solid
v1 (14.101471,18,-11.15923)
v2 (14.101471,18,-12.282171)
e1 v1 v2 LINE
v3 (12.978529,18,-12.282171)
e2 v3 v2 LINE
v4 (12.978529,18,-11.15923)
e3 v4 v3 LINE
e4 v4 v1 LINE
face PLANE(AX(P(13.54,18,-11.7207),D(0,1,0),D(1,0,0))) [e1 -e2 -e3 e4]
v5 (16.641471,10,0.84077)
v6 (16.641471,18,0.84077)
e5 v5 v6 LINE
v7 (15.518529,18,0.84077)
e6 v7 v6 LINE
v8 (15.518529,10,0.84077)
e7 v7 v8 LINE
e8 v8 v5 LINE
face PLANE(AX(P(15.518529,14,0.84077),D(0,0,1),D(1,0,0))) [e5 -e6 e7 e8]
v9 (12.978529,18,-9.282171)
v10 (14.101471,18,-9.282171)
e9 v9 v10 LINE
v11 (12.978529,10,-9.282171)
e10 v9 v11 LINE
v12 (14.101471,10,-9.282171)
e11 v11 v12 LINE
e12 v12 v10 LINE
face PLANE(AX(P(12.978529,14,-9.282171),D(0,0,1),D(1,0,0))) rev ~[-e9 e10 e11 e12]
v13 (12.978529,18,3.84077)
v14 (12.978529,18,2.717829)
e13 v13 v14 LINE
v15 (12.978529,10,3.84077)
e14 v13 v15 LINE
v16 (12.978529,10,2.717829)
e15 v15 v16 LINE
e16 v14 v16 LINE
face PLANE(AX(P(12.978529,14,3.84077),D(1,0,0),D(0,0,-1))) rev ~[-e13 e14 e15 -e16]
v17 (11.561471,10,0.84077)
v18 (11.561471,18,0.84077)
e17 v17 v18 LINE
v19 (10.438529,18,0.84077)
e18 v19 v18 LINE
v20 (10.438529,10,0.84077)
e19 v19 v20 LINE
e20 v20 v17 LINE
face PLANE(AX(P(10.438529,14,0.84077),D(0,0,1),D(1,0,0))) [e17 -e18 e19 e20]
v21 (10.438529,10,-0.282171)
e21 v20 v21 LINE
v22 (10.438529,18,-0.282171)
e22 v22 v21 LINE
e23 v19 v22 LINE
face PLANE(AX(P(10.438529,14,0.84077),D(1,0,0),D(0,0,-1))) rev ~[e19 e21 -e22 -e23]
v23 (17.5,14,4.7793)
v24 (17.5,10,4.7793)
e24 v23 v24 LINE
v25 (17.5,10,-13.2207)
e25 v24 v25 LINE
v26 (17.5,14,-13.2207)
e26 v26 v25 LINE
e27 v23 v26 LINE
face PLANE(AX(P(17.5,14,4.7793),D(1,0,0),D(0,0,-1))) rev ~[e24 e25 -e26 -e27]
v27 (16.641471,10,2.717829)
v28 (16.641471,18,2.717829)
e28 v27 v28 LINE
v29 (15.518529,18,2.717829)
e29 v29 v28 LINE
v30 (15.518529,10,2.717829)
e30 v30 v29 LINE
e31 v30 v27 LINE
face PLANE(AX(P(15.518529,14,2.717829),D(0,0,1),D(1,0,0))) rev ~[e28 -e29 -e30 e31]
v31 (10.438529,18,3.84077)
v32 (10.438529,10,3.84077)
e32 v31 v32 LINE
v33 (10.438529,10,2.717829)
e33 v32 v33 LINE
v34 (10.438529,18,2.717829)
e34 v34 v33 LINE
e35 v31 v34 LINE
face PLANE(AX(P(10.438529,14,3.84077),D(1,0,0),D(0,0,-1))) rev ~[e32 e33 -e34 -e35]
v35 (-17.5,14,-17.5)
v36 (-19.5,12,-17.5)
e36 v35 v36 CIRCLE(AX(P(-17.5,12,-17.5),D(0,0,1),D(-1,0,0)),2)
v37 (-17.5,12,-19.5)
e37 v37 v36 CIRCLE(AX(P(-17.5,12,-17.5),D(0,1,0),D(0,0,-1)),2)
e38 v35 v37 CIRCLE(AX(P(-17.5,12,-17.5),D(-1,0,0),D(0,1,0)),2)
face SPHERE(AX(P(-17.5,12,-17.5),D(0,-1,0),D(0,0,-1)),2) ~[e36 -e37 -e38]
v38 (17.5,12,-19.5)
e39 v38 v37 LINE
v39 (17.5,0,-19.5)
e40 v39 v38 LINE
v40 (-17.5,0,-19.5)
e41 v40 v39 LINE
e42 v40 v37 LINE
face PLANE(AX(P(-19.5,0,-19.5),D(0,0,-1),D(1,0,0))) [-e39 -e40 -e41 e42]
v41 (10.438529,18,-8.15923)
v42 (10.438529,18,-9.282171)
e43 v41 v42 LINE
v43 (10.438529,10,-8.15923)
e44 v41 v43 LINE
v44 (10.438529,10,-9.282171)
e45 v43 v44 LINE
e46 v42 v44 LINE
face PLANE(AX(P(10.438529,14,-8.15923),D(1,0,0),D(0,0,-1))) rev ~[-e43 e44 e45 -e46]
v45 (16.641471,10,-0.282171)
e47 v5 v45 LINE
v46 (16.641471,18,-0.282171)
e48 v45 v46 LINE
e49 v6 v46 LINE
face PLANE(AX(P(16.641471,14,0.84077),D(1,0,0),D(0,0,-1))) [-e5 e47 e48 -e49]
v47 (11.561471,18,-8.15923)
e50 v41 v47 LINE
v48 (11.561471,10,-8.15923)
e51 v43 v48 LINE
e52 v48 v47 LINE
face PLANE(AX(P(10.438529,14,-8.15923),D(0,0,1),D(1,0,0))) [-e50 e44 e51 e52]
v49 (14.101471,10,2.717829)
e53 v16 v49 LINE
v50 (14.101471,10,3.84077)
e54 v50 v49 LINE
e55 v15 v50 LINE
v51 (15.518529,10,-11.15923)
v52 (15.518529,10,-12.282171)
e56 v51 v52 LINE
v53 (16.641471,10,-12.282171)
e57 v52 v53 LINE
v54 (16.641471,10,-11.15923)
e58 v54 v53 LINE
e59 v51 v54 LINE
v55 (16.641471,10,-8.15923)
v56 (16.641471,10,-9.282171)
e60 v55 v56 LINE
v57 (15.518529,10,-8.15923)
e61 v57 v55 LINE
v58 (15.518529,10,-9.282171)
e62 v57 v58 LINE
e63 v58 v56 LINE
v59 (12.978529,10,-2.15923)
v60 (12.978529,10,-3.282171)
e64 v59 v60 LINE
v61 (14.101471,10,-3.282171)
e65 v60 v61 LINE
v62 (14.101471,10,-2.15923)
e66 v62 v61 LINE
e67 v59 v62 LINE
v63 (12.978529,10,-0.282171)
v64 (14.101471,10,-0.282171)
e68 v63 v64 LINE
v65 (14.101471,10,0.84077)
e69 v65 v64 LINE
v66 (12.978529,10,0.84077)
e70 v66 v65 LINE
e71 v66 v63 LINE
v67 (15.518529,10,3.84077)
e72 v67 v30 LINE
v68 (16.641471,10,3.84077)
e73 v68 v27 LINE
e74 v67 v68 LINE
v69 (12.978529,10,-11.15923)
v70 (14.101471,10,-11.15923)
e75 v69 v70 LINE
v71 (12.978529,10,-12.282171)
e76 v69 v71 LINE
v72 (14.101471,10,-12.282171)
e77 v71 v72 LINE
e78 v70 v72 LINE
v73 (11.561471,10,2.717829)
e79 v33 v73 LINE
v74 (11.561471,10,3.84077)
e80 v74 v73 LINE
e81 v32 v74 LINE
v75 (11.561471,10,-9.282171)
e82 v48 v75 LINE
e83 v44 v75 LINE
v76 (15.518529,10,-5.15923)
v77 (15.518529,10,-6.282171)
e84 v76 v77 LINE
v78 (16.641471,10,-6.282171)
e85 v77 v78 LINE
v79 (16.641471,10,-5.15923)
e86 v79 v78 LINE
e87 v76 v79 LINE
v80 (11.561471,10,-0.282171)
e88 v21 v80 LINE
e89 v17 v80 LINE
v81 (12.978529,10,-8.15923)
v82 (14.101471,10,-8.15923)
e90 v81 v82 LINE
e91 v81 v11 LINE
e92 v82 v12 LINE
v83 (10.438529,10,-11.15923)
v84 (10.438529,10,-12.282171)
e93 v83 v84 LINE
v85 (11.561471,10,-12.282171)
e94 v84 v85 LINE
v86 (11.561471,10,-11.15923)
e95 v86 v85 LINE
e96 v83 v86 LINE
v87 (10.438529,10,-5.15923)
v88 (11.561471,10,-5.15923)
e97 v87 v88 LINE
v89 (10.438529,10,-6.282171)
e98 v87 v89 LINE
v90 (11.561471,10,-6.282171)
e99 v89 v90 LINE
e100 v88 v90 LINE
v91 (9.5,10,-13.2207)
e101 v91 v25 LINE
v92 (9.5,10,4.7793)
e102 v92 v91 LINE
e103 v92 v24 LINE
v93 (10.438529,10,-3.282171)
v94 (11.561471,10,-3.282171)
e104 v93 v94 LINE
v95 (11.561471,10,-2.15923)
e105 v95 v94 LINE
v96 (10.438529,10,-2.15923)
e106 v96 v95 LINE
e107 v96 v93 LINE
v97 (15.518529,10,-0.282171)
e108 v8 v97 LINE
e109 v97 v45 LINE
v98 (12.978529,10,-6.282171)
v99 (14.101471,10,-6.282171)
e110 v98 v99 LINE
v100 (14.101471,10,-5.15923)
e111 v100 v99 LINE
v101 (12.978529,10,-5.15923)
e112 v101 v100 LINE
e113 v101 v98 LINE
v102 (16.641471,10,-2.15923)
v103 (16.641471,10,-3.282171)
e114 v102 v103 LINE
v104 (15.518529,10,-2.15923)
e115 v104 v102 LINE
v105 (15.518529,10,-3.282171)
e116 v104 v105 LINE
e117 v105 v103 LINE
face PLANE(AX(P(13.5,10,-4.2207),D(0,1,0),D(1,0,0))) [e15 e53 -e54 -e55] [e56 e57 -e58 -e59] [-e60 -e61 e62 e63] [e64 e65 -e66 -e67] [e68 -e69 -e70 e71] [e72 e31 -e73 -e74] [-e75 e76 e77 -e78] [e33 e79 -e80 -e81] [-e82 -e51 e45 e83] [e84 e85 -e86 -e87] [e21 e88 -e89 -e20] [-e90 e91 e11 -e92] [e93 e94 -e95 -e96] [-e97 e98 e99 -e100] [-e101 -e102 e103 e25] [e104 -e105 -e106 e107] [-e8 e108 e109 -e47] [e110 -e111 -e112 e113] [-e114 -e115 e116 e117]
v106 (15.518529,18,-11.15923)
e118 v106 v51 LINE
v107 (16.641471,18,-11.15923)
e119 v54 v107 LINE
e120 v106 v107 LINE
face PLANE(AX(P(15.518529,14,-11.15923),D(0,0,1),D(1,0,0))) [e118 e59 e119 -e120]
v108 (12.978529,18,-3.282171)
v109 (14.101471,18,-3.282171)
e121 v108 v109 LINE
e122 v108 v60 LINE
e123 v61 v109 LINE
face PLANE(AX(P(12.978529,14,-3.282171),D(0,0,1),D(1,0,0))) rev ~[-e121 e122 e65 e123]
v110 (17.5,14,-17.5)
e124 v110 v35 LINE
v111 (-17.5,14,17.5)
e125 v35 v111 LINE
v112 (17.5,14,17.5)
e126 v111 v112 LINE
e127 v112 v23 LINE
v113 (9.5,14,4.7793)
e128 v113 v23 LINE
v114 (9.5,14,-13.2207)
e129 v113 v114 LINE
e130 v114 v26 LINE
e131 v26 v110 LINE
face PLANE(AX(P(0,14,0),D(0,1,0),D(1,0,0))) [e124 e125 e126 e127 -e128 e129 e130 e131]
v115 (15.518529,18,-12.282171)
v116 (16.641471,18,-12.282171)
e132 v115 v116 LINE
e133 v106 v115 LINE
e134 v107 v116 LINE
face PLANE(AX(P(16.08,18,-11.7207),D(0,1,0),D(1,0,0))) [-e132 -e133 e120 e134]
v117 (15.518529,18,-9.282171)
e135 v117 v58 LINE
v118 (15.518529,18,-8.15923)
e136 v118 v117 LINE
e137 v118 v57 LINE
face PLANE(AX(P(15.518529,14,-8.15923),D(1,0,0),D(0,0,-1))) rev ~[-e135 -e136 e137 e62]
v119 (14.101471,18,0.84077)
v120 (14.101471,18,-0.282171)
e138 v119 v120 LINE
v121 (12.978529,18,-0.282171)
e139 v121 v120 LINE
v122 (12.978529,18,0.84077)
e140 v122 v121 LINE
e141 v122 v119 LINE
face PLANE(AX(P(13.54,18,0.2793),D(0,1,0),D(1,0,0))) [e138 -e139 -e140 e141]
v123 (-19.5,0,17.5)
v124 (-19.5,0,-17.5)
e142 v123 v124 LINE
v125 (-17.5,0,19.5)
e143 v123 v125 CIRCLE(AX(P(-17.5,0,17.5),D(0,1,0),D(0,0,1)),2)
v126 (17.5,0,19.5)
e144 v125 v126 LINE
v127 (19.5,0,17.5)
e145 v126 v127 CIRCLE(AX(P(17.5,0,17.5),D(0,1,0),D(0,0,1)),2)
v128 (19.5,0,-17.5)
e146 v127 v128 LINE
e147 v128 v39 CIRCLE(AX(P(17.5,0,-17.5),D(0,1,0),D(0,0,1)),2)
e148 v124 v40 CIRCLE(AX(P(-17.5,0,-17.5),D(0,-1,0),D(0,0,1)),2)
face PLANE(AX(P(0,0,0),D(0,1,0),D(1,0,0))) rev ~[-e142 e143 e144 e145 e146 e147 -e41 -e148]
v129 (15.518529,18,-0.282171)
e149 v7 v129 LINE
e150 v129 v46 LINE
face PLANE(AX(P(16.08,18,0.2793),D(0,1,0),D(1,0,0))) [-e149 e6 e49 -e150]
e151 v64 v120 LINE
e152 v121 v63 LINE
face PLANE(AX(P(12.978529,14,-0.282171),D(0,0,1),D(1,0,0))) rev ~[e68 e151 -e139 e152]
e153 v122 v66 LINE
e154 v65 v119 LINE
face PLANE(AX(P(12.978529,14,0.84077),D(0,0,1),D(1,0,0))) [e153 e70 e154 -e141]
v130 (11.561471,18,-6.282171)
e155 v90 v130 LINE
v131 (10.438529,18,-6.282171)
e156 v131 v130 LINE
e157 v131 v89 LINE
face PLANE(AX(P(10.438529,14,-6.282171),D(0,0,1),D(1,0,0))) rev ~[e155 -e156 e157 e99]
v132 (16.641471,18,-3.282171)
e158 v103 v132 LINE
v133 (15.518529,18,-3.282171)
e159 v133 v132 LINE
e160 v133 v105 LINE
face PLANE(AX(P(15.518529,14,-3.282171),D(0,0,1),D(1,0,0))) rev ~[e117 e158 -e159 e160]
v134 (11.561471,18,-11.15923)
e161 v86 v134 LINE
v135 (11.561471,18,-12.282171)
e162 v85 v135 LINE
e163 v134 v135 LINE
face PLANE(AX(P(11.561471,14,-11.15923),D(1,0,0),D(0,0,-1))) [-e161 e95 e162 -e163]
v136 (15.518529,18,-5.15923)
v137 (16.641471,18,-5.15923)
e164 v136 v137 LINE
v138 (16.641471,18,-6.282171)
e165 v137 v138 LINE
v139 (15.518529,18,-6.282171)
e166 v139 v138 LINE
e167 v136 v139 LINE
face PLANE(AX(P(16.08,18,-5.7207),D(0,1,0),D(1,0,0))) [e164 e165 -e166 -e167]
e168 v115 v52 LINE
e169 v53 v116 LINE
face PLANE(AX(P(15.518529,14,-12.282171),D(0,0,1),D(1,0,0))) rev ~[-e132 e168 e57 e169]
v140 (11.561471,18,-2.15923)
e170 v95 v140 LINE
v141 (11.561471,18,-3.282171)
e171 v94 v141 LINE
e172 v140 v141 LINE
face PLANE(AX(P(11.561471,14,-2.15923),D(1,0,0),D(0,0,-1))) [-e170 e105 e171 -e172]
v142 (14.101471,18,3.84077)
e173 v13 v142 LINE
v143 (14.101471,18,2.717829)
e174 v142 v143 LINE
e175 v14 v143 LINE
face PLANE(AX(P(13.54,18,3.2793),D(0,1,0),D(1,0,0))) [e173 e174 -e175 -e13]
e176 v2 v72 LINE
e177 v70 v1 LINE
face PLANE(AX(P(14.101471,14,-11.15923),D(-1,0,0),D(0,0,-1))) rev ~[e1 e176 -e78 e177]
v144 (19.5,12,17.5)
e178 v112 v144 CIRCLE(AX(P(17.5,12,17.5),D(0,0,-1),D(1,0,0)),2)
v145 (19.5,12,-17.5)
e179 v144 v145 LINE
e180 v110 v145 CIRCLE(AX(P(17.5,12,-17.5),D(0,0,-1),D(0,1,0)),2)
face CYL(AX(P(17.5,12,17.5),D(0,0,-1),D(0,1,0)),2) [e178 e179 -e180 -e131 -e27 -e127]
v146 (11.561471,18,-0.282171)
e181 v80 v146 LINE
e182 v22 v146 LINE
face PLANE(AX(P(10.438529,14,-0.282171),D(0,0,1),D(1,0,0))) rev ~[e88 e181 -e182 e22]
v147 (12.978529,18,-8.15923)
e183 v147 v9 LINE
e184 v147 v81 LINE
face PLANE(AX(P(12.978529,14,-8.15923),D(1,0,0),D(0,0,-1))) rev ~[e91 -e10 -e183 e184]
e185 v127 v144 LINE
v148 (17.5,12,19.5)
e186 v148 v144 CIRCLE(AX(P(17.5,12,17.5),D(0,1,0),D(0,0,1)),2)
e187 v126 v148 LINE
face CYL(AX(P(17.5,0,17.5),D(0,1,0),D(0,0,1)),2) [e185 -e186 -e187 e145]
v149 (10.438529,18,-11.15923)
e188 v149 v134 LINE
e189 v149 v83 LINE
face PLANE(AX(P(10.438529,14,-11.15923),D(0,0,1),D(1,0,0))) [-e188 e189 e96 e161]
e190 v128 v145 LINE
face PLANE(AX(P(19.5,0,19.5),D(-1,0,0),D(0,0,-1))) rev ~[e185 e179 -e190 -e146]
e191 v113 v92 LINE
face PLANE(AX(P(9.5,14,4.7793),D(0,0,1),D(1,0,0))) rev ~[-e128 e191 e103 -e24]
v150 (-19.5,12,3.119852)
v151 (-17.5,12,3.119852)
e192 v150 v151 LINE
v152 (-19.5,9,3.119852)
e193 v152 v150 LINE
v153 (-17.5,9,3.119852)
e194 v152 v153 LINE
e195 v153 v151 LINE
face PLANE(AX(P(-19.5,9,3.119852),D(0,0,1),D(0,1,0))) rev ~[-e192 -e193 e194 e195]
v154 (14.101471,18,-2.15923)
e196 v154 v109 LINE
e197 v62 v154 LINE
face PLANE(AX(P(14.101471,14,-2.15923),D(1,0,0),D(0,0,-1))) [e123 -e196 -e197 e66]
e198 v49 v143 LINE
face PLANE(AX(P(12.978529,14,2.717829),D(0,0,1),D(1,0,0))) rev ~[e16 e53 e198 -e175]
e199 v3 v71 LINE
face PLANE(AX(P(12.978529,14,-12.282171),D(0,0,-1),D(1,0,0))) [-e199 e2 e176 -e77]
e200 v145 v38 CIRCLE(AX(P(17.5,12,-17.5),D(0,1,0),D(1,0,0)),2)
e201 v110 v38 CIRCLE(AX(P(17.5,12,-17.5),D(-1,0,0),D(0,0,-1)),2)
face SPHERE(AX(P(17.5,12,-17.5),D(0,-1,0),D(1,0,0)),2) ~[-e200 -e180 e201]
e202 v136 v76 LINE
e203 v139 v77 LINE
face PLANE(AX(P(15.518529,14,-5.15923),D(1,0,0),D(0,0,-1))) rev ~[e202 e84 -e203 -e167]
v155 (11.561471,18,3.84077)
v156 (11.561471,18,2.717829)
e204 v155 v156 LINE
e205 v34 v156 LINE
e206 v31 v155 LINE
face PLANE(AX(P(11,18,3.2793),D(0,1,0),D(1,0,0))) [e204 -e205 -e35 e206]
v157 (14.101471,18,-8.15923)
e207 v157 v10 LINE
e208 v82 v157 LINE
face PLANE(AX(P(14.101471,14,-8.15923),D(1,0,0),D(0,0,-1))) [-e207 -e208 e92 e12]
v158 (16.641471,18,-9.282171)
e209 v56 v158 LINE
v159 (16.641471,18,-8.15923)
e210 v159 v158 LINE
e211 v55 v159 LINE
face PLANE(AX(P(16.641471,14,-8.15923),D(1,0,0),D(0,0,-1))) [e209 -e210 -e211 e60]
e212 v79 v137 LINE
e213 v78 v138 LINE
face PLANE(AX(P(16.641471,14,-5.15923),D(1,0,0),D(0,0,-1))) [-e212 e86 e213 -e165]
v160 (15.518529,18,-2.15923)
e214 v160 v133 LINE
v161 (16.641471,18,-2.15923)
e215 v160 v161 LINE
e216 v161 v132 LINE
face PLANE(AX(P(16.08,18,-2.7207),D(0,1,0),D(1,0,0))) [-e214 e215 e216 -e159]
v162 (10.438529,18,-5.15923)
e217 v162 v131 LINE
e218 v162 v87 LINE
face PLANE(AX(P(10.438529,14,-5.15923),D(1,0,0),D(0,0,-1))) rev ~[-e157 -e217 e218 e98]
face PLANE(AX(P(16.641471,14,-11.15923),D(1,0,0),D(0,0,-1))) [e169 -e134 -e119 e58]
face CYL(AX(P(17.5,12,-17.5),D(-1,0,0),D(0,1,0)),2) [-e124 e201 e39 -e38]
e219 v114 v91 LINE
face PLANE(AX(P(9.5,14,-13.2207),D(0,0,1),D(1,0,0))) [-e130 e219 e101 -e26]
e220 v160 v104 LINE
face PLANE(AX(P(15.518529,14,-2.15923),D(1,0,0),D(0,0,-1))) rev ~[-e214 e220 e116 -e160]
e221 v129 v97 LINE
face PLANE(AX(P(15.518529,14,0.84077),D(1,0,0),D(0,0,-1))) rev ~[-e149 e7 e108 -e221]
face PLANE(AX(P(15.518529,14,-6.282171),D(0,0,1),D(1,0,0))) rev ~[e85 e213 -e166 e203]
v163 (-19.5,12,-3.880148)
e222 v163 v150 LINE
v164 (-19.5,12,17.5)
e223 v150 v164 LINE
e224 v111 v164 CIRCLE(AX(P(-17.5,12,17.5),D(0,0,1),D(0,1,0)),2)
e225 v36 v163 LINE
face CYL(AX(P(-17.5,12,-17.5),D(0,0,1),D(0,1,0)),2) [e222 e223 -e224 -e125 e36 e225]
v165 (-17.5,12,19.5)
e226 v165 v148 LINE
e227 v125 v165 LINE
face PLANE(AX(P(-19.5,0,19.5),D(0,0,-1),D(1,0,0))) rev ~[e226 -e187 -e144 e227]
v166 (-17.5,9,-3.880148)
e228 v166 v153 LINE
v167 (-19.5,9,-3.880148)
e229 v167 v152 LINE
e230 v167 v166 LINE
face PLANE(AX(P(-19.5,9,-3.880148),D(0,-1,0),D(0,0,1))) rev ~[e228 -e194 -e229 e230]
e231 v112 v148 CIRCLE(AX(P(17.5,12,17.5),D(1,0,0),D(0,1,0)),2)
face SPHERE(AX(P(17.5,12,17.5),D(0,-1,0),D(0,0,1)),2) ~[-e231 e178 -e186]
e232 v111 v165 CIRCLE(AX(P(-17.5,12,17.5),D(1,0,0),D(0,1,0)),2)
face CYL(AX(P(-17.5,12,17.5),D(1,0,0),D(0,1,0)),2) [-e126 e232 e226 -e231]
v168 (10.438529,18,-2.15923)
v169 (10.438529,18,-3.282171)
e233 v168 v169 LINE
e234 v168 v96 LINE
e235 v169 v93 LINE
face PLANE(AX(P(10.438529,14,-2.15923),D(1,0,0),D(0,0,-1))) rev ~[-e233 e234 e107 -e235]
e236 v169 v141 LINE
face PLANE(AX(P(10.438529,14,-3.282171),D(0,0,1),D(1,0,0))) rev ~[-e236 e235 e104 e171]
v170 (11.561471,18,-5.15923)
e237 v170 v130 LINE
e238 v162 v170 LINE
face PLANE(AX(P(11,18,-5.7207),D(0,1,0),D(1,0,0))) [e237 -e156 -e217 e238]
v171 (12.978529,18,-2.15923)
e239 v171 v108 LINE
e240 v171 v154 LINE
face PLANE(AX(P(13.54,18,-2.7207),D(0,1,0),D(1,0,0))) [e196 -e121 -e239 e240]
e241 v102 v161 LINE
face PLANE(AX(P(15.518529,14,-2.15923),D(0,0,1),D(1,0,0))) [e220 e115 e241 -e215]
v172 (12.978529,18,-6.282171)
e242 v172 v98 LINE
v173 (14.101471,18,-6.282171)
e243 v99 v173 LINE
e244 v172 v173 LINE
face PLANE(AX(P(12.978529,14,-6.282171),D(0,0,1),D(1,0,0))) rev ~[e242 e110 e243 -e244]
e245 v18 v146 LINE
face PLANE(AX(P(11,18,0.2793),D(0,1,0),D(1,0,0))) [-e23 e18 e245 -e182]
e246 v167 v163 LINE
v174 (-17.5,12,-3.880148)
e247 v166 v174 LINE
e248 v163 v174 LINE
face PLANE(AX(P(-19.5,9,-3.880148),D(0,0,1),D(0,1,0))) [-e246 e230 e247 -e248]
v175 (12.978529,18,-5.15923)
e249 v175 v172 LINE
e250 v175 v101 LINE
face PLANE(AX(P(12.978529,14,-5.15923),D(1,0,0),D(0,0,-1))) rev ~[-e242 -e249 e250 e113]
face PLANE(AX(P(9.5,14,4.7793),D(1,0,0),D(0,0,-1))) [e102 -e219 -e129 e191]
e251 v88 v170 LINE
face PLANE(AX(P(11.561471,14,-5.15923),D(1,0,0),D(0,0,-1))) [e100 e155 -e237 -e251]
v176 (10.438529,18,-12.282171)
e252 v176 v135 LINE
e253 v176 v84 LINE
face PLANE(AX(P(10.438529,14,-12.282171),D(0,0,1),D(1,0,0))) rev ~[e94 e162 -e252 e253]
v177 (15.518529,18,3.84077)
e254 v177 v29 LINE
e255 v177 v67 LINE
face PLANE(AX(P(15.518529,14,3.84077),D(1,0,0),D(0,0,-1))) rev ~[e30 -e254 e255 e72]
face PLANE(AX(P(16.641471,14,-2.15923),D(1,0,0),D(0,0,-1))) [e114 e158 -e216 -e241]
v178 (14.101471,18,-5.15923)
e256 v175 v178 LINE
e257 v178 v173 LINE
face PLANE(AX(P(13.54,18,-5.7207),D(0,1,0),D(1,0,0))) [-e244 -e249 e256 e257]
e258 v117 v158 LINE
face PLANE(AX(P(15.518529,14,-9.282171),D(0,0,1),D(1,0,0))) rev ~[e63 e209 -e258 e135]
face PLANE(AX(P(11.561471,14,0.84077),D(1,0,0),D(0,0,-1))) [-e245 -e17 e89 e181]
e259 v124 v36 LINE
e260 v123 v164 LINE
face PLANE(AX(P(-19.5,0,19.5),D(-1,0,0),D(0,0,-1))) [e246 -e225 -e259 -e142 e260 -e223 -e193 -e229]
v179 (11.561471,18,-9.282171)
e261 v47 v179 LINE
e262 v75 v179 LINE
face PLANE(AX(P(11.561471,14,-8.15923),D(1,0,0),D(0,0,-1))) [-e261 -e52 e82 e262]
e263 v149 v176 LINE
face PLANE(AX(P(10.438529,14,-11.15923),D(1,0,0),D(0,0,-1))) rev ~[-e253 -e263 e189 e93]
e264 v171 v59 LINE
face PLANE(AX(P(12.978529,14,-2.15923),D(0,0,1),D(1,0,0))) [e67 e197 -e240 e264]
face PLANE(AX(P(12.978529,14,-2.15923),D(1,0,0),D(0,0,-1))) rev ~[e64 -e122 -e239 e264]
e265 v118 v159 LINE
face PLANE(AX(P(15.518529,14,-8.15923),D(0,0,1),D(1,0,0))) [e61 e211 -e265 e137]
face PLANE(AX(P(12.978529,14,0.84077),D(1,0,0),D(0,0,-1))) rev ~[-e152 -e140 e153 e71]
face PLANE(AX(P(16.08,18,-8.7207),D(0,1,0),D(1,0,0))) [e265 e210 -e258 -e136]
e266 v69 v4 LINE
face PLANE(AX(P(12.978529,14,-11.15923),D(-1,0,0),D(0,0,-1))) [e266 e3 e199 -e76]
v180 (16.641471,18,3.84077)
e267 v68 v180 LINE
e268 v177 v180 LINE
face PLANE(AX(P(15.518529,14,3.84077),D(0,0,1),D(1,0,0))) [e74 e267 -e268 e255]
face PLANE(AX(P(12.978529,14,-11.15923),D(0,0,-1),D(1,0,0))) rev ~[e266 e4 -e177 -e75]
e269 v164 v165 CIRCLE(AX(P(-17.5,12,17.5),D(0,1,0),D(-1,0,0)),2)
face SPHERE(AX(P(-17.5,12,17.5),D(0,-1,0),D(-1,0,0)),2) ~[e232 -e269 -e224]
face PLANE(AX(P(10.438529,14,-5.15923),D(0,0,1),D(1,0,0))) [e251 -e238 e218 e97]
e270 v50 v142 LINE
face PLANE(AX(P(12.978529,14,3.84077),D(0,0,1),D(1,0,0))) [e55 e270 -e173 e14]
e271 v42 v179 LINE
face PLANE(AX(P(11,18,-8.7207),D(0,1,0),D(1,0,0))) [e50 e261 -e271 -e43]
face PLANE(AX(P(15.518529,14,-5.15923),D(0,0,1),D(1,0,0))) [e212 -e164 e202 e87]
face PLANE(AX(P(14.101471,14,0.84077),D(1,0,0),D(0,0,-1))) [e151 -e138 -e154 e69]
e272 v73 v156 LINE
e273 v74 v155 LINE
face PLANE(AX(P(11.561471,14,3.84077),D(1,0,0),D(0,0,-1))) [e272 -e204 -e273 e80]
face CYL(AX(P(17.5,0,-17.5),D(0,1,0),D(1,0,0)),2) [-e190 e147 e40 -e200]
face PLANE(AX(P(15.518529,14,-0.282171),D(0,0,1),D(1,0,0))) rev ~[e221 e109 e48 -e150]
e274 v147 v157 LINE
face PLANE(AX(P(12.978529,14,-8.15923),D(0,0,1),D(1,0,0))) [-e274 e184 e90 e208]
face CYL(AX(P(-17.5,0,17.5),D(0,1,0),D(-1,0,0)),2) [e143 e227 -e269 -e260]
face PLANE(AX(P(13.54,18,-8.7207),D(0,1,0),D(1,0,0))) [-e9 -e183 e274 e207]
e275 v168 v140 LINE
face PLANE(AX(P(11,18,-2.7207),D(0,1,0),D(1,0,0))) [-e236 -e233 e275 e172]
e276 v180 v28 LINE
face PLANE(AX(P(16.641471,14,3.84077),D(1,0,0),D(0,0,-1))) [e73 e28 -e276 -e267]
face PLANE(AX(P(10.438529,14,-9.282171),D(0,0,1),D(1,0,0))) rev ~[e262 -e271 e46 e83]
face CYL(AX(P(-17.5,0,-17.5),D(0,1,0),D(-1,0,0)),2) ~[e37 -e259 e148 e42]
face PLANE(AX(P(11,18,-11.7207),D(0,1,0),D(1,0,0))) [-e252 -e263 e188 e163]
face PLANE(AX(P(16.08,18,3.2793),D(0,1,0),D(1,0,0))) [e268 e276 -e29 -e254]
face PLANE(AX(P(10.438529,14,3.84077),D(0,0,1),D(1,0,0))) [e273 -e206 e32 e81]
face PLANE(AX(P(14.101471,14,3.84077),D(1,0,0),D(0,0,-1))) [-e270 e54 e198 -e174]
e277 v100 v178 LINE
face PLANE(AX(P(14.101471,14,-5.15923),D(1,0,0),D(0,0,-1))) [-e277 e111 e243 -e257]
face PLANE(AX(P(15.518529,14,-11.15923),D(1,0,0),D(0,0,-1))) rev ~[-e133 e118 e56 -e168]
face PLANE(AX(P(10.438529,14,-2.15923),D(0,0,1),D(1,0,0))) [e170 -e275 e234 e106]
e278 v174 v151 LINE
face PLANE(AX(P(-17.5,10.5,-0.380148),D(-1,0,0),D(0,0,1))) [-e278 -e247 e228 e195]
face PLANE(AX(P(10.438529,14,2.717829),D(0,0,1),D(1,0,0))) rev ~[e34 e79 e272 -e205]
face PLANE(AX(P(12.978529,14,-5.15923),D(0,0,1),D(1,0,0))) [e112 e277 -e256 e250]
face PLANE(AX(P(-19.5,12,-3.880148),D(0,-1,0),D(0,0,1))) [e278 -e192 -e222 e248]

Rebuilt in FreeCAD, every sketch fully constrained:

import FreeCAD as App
import Part
import Sketcher
from FreeCAD import Vector


def edges_at(feature, points):
    """Names of the edges that pass closest to the given points."""
    edges = feature.Shape.Edges
    near = lambda p: min(range(len(edges)), key=lambda i: edges[i].distToShape(Part.Vertex(*p))[0])
    return sorted({f"Edge{near(p) + 1}" for p in points})


def add_polygon(sketch, points):
    """Adds a closed chain of lines whose ends are joined by coincident constraints."""
    first, n = sketch.GeometryCount, len(points)
    for a, b in zip(points, points[1:] + points[:1]):
        sketch.addGeometry(Part.LineSegment(App.Vector(*a, 0), App.Vector(*b, 0)), False)
    for i in range(n):
        sketch.addConstraint(Sketcher.Constraint("Coincident", first + i, 2, first + (i + 1) % n, 1))

doc = App.newDocument("Part")
body = doc.addObject("PartDesign::Body", "Body")

# Sketch on XZ plane
sketch1 = body.newObject("Sketcher::SketchObject", "Sketch")
sketch1.AttachmentSupport = (doc.getObject("XZ_Plane"), [""])
sketch1.MapMode = "FlatFace"
add_polygon(sketch1, [(-20, -20), (-20, 20), (20, 20), (20, -20)])  # lines 0-3
sketch1.addConstraint([
    Sketcher.Constraint("Vertical", 0),
    Sketcher.Constraint("Horizontal", 1),
    Sketcher.Constraint("Vertical", 2),
    Sketcher.Constraint("Horizontal", 3),
    Sketcher.Constraint("Symmetric", 0, 2, 2, 2, -1, 1),
    Sketcher.Constraint("Equal", 3, 0),
    Sketcher.Constraint("DistanceX", 1, 1, 1, 2, 39.0),
])
pad1 = body.newObject("PartDesign::Pad", "Pad")
pad1.Profile = sketch1
pad1.Length = 14
pad1.Reversed = True
doc.recompute()

fillet = body.newObject("PartDesign::Fillet", "Fillet")
fillet.Base = (pad1, edges_at(pad1, [
    (19.5, 7, 19.5),
    (-19.5, 7, 19.5),
    (-19.5, 7, -19.5),
    (19.5, 7, -19.5),
]))
fillet.Radius = 2
doc.recompute()

fillet2 = body.newObject("PartDesign::Fillet", "Fillet001")
fillet2.Base = (fillet, edges_at(fillet, [
    (0, 14, 19.5),
    (-19.5, 14, 0),
    (19.5, 14, 0),
    (0, 14, -19.5),
    (18.914, 14, 18.914),
    (18.914, 14, -18.914),
    (-18.914, 14, -18.914),
    (-18.914, 14, 18.914),
]))
fillet2.Radius = 2

# Sketch on XZ plane
sketch2 = body.newObject("Sketcher::SketchObject", "Sketch001")
sketch2.AttachmentSupport = (doc.getObject("XZ_Plane"), [""])
sketch2.MapMode = "FlatFace"
sketch2.AttachmentOffset = App.Placement(Vector(0, 0, -14), App.Rotation())
add_polygon(sketch2, [(9.5, -13.2), (9.5, 4.8), (17.5, 4.8), (17.5, -13.2)])  # lines 0-3
add_polygon(sketch2, [(11.6, 3.8), (10.4, 3.8), (10.4, 2.7), (11.6, 2.7)])  # lines 4-7
add_polygon(sketch2, [(11.6, 0.8), (10.4, 0.8), (10.4, -0.3), (11.6, -0.3)])  # lines 8-11
add_polygon(sketch2, [(14.1, 3.8), (13, 3.8), (13, 2.7), (14.1, 2.7)])  # lines 12-15
add_polygon(sketch2, [(14.1, 0.8), (13, 0.8), (13, -0.3), (14.1, -0.3)])  # lines 16-19
add_polygon(sketch2, [(11.6, -2.2), (10.4, -2.2), (10.4, -3.3), (11.6, -3.3)])  # lines 20-23
add_polygon(sketch2, [(14.1, -2.2), (13, -2.2), (13, -3.3), (14.1, -3.3)])  # lines 24-27
add_polygon(sketch2, [(16.6, 3.8), (15.5, 3.8), (15.5, 2.7), (16.6, 2.7)])  # lines 28-31
add_polygon(sketch2, [(16.6, 0.8), (15.5, 0.8), (15.5, -0.3), (16.6, -0.3)])  # lines 32-35
add_polygon(sketch2, [(16.6, -2.2), (15.5, -2.2), (15.5, -3.3), (16.6, -3.3)])  # lines 36-39
add_polygon(sketch2, [(11.6, -5.2), (10.4, -5.2), (10.4, -6.3), (11.6, -6.3)])  # lines 40-43
add_polygon(sketch2, [(14.1, -5.2), (13, -5.2), (13, -6.3), (14.1, -6.3)])  # lines 44-47
add_polygon(sketch2, [(11.6, -8.2), (10.4, -8.2), (10.4, -9.3), (11.6, -9.3)])  # lines 48-51
add_polygon(sketch2, [(11.6, -11.2), (10.4, -11.2), (10.4, -12.3), (11.6, -12.3)])  # lines 52-55
add_polygon(sketch2, [(14.1, -8.2), (13, -8.2), (13, -9.3), (14.1, -9.3)])  # lines 56-59
add_polygon(sketch2, [(14.1, -11.2), (13, -11.2), (13, -12.3), (14.1, -12.3)])  # lines 60-63
add_polygon(sketch2, [(16.6, -5.2), (15.5, -5.2), (15.5, -6.3), (16.6, -6.3)])  # lines 64-67
add_polygon(sketch2, [(16.6, -8.2), (15.5, -8.2), (15.5, -9.3), (16.6, -9.3)])  # lines 68-71
add_polygon(sketch2, [(16.6, -11.2), (15.5, -11.2), (15.5, -12.3), (16.6, -12.3)])  # lines 72-75
sketch2.addConstraint([
    Sketcher.Constraint("Vertical", 0),
    Sketcher.Constraint("Horizontal", 1),
    Sketcher.Constraint("Vertical", 2),
    Sketcher.Constraint("Horizontal", 3),
    Sketcher.Constraint("Horizontal", 4),
    Sketcher.Constraint("Vertical", 5),
    Sketcher.Constraint("Horizontal", 6),
    Sketcher.Constraint("Vertical", 7),
    Sketcher.Constraint("Horizontal", 8),
    Sketcher.Constraint("Vertical", 9),
    Sketcher.Constraint("Horizontal", 10),
    Sketcher.Constraint("Vertical", 11),
    Sketcher.Constraint("Horizontal", 12),
    Sketcher.Constraint("Vertical", 13),
    Sketcher.Constraint("Horizontal", 14),
    Sketcher.Constraint("Vertical", 15),
    Sketcher.Constraint("Horizontal", 16),
    Sketcher.Constraint("Vertical", 17),
    Sketcher.Constraint("Horizontal", 18),
    Sketcher.Constraint("Vertical", 19),
    Sketcher.Constraint("Horizontal", 20),
    Sketcher.Constraint("Vertical", 21),
    Sketcher.Constraint("Horizontal", 22),
    Sketcher.Constraint("Vertical", 23),
    Sketcher.Constraint("Horizontal", 24),
    Sketcher.Constraint("Vertical", 25),
    Sketcher.Constraint("Horizontal", 26),
    Sketcher.Constraint("Vertical", 27),
    Sketcher.Constraint("Horizontal", 28),
    Sketcher.Constraint("Vertical", 29),
    Sketcher.Constraint("Horizontal", 30),
    Sketcher.Constraint("Vertical", 31),
    Sketcher.Constraint("Horizontal", 32),
    Sketcher.Constraint("Vertical", 33),
    Sketcher.Constraint("Horizontal", 34),
    Sketcher.Constraint("Vertical", 35),
    Sketcher.Constraint("Horizontal", 36),
    Sketcher.Constraint("Vertical", 37),
    Sketcher.Constraint("Horizontal", 38),
    Sketcher.Constraint("Vertical", 39),
    Sketcher.Constraint("Horizontal", 40),
    Sketcher.Constraint("Vertical", 41),
    Sketcher.Constraint("Horizontal", 42),
    Sketcher.Constraint("Vertical", 43),
    Sketcher.Constraint("Horizontal", 44),
    Sketcher.Constraint("Vertical", 45),
    Sketcher.Constraint("Horizontal", 46),
    Sketcher.Constraint("Vertical", 47),
    Sketcher.Constraint("Horizontal", 48),
    Sketcher.Constraint("Vertical", 49),
    Sketcher.Constraint("Horizontal", 50),
    Sketcher.Constraint("Vertical", 51),
    Sketcher.Constraint("Horizontal", 52),
    Sketcher.Constraint("Vertical", 53),
    Sketcher.Constraint("Horizontal", 54),
    Sketcher.Constraint("Vertical", 55),
    Sketcher.Constraint("Horizontal", 56),
    Sketcher.Constraint("Vertical", 57),
    Sketcher.Constraint("Horizontal", 58),
    Sketcher.Constraint("Vertical", 59),
    Sketcher.Constraint("Horizontal", 60),
    Sketcher.Constraint("Vertical", 61),
    Sketcher.Constraint("Horizontal", 62),
    Sketcher.Constraint("Vertical", 63),
    Sketcher.Constraint("Horizontal", 64),
    Sketcher.Constraint("Vertical", 65),
    Sketcher.Constraint("Horizontal", 66),
    Sketcher.Constraint("Vertical", 67),
    Sketcher.Constraint("Horizontal", 68),
    Sketcher.Constraint("Vertical", 69),
    Sketcher.Constraint("Horizontal", 70),
    Sketcher.Constraint("Vertical", 71),
    Sketcher.Constraint("Horizontal", 72),
    Sketcher.Constraint("Vertical", 73),
    Sketcher.Constraint("Horizontal", 74),
    Sketcher.Constraint("Vertical", 75),
    Sketcher.Constraint("Horizontal", 7, 2, 12, 2),
    Sketcher.Constraint("Horizontal", 6, 2, 13, 2),
    Sketcher.Constraint("Horizontal", 11, 2, 16, 2),
    Sketcher.Constraint("Horizontal", 10, 2, 17, 2),
    Sketcher.Constraint("Horizontal", 23, 2, 24, 2),
    Sketcher.Constraint("Horizontal", 22, 2, 25, 2),
    Sketcher.Constraint("Horizontal", 15, 2, 28, 2),
    Sketcher.Constraint("Horizontal", 14, 2, 29, 2),
    Sketcher.Constraint("Horizontal", 19, 2, 32, 2),
    Sketcher.Constraint("Horizontal", 18, 2, 33, 2),
    Sketcher.Constraint("Horizontal", 27, 2, 36, 2),
    Sketcher.Constraint("Horizontal", 26, 2, 37, 2),
    Sketcher.Constraint("Horizontal", 43, 2, 44, 2),
    Sketcher.Constraint("Horizontal", 42, 2, 45, 2),
    Sketcher.Constraint("Horizontal", 51, 2, 56, 2),
    Sketcher.Constraint("Horizontal", 50, 2, 57, 2),
    Sketcher.Constraint("Horizontal", 55, 2, 60, 2),
    Sketcher.Constraint("Horizontal", 54, 2, 61, 2),
    Sketcher.Constraint("Horizontal", 47, 2, 64, 2),
    Sketcher.Constraint("Horizontal", 46, 2, 65, 2),
    Sketcher.Constraint("Horizontal", 59, 2, 68, 2),
    Sketcher.Constraint("Horizontal", 58, 2, 69, 2),
    Sketcher.Constraint("Horizontal", 63, 2, 72, 2),
    Sketcher.Constraint("Horizontal", 62, 2, 73, 2),
    Sketcher.Constraint("Vertical", 5, 2, 8, 2),
    Sketcher.Constraint("Vertical", 7, 2, 10, 2),
    Sketcher.Constraint("Vertical", 13, 2, 16, 2),
    Sketcher.Constraint("Vertical", 15, 2, 18, 2),
    Sketcher.Constraint("Vertical", 9, 2, 20, 2),
    Sketcher.Constraint("Vertical", 11, 2, 22, 2),
    Sketcher.Constraint("Vertical", 17, 2, 24, 2),
    Sketcher.Constraint("Vertical", 19, 2, 26, 2),
    Sketcher.Constraint("Vertical", 29, 2, 32, 2),
    Sketcher.Constraint("Vertical", 31, 2, 34, 2),
    Sketcher.Constraint("Vertical", 33, 2, 36, 2),
    Sketcher.Constraint("Vertical", 35, 2, 38, 2),
    Sketcher.Constraint("Vertical", 21, 2, 40, 2),
    Sketcher.Constraint("Vertical", 23, 2, 42, 2),
    Sketcher.Constraint("Vertical", 25, 2, 44, 2),
    Sketcher.Constraint("Vertical", 27, 2, 46, 2),
    Sketcher.Constraint("Vertical", 41, 2, 48, 2),
    Sketcher.Constraint("Vertical", 43, 2, 50, 2),
    Sketcher.Constraint("Vertical", 49, 2, 52, 2),
    Sketcher.Constraint("Vertical", 51, 2, 54, 2),
    Sketcher.Constraint("Vertical", 45, 2, 56, 2),
    Sketcher.Constraint("Vertical", 47, 2, 58, 2),
    Sketcher.Constraint("Vertical", 57, 2, 60, 2),
    Sketcher.Constraint("Vertical", 59, 2, 62, 2),
    Sketcher.Constraint("Vertical", 37, 2, 64, 2),
    Sketcher.Constraint("Vertical", 39, 2, 66, 2),
    Sketcher.Constraint("Vertical", 65, 2, 68, 2),
    Sketcher.Constraint("Vertical", 67, 2, 70, 2),
    Sketcher.Constraint("Vertical", 69, 2, 72, 2),
    Sketcher.Constraint("Vertical", 71, 2, 74, 2),
    Sketcher.Constraint("Equal", 10, 12),
    Sketcher.Constraint("Equal", 26, 28),
    Sketcher.Constraint("Equal", 74, 5),
    Sketcher.Constraint("Equal", 7, 9),
    Sketcher.Constraint("Equal", 19, 21),
    Sketcher.Constraint("Equal", 39, 41),
    Sketcher.Constraint("Equal", 47, 49),
    Sketcher.Constraint("Equal", 51, 53),
    Sketcher.Constraint("DistanceX", 1, 1, 1, 2, 8.0),
    Sketcher.Constraint("DistanceY", 0, 1, 0, 2, 18.0),
    Sketcher.Constraint("DistanceX", -1, 1, 0, 2, 9.5),
    Sketcher.Constraint("DistanceX", 4, 2, 4, 1, 1.122941),
    Sketcher.Constraint("DistanceY", -1, 1, 0, 2, 4.7793),
    Sketcher.Constraint("DistanceX", -1, 1, 4, 2, 10.438529),
    Sketcher.Constraint("DistanceY", -1, 1, 4, 2, 3.84077),
    Sketcher.Constraint("DistanceY", -1, 1, 8, 2, 0.84077),
    Sketcher.Constraint("DistanceX", -1, 1, 12, 2, 12.978529),
    Sketcher.Constraint("DistanceY", 20, 2, -1, 1, 2.15923),
    Sketcher.Constraint("DistanceX", -1, 1, 28, 2, 15.518529),
    Sketcher.Constraint("DistanceY", 40, 2, -1, 1, 5.15923),
    Sketcher.Constraint("DistanceY", 48, 2, -1, 1, 8.15923),
    Sketcher.Constraint("DistanceY", 52, 2, -1, 1, 11.15923),
])
pocket1 = body.newObject("PartDesign::Pocket", "Pocket")
pocket1.Profile = sketch2
pocket1.Length = 4
pocket1.Reversed = True

# Sketch on XZ plane
sketch3 = body.newObject("Sketcher::SketchObject", "Sketch002")
sketch3.AttachmentSupport = (doc.getObject("XZ_Plane"), [""])
sketch3.MapMode = "FlatFace"
sketch3.AttachmentOffset = App.Placement(Vector(0, 0, -14), App.Rotation())
add_polygon(sketch3, [(13, -12.3), (13, -11.2), (14.1, -11.2), (14.1, -12.3)])  # lines 0-3
add_polygon(sketch3, [(10.4, -12.3), (10.4, -11.2), (11.6, -11.2), (11.6, -12.3)])  # lines 4-7
add_polygon(sketch3, [(15.5, -12.3), (15.5, -11.2), (16.6, -11.2), (16.6, -12.3)])  # lines 8-11
add_polygon(sketch3, [(10.4, -9.3), (10.4, -8.2), (11.6, -8.2), (11.6, -9.3)])  # lines 12-15
add_polygon(sketch3, [(13, -9.3), (13, -8.2), (14.1, -8.2), (14.1, -9.3)])  # lines 16-19
add_polygon(sketch3, [(15.5, -9.3), (15.5, -8.2), (16.6, -8.2), (16.6, -9.3)])  # lines 20-23
add_polygon(sketch3, [(10.4, -6.3), (10.4, -5.2), (11.6, -5.2), (11.6, -6.3)])  # lines 24-27
add_polygon(sketch3, [(13, -6.3), (13, -5.2), (14.1, -5.2), (14.1, -6.3)])  # lines 28-31
add_polygon(sketch3, [(15.5, -6.3), (15.5, -5.2), (16.6, -5.2), (16.6, -6.3)])  # lines 32-35
add_polygon(sketch3, [(10.4, -3.3), (10.4, -2.2), (11.6, -2.2), (11.6, -3.3)])  # lines 36-39
add_polygon(sketch3, [(13, -3.3), (13, -2.2), (14.1, -2.2), (14.1, -3.3)])  # lines 40-43
add_polygon(sketch3, [(15.5, -3.3), (15.5, -2.2), (16.6, -2.2), (16.6, -3.3)])  # lines 44-47
add_polygon(sketch3, [(10.4, -0.3), (10.4, 0.8), (11.6, 0.8), (11.6, -0.3)])  # lines 48-51
add_polygon(sketch3, [(13, -0.3), (13, 0.8), (14.1, 0.8), (14.1, -0.3)])  # lines 52-55
add_polygon(sketch3, [(15.5, -0.3), (15.5, 0.8), (16.6, 0.8), (16.6, -0.3)])  # lines 56-59
add_polygon(sketch3, [(10.4, 2.7), (10.4, 3.8), (11.6, 3.8), (11.6, 2.7)])  # lines 60-63
add_polygon(sketch3, [(13, 2.7), (13, 3.8), (14.1, 3.8), (14.1, 2.7)])  # lines 64-67
add_polygon(sketch3, [(15.5, 2.7), (15.5, 3.8), (16.6, 3.8), (16.6, 2.7)])  # lines 68-71
sketch3.addConstraint([
    Sketcher.Constraint("Vertical", 0),
    Sketcher.Constraint("Horizontal", 1),
    Sketcher.Constraint("Vertical", 2),
    Sketcher.Constraint("Horizontal", 3),
    Sketcher.Constraint("Vertical", 4),
    Sketcher.Constraint("Horizontal", 5),
    Sketcher.Constraint("Vertical", 6),
    Sketcher.Constraint("Horizontal", 7),
    Sketcher.Constraint("Vertical", 8),
    Sketcher.Constraint("Horizontal", 9),
    Sketcher.Constraint("Vertical", 10),
    Sketcher.Constraint("Horizontal", 11),
    Sketcher.Constraint("Vertical", 12),
    Sketcher.Constraint("Horizontal", 13),
    Sketcher.Constraint("Vertical", 14),
    Sketcher.Constraint("Horizontal", 15),
    Sketcher.Constraint("Vertical", 16),
    Sketcher.Constraint("Horizontal", 17),
    Sketcher.Constraint("Vertical", 18),
    Sketcher.Constraint("Horizontal", 19),
    Sketcher.Constraint("Vertical", 20),
    Sketcher.Constraint("Horizontal", 21),
    Sketcher.Constraint("Vertical", 22),
    Sketcher.Constraint("Horizontal", 23),
    Sketcher.Constraint("Vertical", 24),
    Sketcher.Constraint("Horizontal", 25),
    Sketcher.Constraint("Vertical", 26),
    Sketcher.Constraint("Horizontal", 27),
    Sketcher.Constraint("Vertical", 28),
    Sketcher.Constraint("Horizontal", 29),
    Sketcher.Constraint("Vertical", 30),
    Sketcher.Constraint("Horizontal", 31),
    Sketcher.Constraint("Vertical", 32),
    Sketcher.Constraint("Horizontal", 33),
    Sketcher.Constraint("Vertical", 34),
    Sketcher.Constraint("Horizontal", 35),
    Sketcher.Constraint("Vertical", 36),
    Sketcher.Constraint("Horizontal", 37),
    Sketcher.Constraint("Vertical", 38),
    Sketcher.Constraint("Horizontal", 39),
    Sketcher.Constraint("Vertical", 40),
    Sketcher.Constraint("Horizontal", 41),
    Sketcher.Constraint("Vertical", 42),
    Sketcher.Constraint("Horizontal", 43),
    Sketcher.Constraint("Vertical", 44),
    Sketcher.Constraint("Horizontal", 45),
    Sketcher.Constraint("Vertical", 46),
    Sketcher.Constraint("Horizontal", 47),
    Sketcher.Constraint("Vertical", 48),
    Sketcher.Constraint("Horizontal", 49),
    Sketcher.Constraint("Vertical", 50),
    Sketcher.Constraint("Horizontal", 51),
    Sketcher.Constraint("Vertical", 52),
    Sketcher.Constraint("Horizontal", 53),
    Sketcher.Constraint("Vertical", 54),
    Sketcher.Constraint("Horizontal", 55),
    Sketcher.Constraint("Vertical", 56),
    Sketcher.Constraint("Horizontal", 57),
    Sketcher.Constraint("Vertical", 58),
    Sketcher.Constraint("Horizontal", 59),
    Sketcher.Constraint("Vertical", 60),
    Sketcher.Constraint("Horizontal", 61),
    Sketcher.Constraint("Vertical", 62),
    Sketcher.Constraint("Horizontal", 63),
    Sketcher.Constraint("Vertical", 64),
    Sketcher.Constraint("Horizontal", 65),
    Sketcher.Constraint("Vertical", 66),
    Sketcher.Constraint("Horizontal", 67),
    Sketcher.Constraint("Vertical", 68),
    Sketcher.Constraint("Horizontal", 69),
    Sketcher.Constraint("Vertical", 70),
    Sketcher.Constraint("Horizontal", 71),
    Sketcher.Constraint("Horizontal", 1, 2, 4, 2),
    Sketcher.Constraint("Horizontal", 3, 2, 6, 2),
    Sketcher.Constraint("Horizontal", 5, 2, 8, 2),
    Sketcher.Constraint("Horizontal", 7, 2, 10, 2),
    Sketcher.Constraint("Horizontal", 13, 2, 16, 2),
    Sketcher.Constraint("Horizontal", 15, 2, 18, 2),
    Sketcher.Constraint("Horizontal", 17, 2, 20, 2),
    Sketcher.Constraint("Horizontal", 19, 2, 22, 2),
    Sketcher.Constraint("Horizontal", 25, 2, 28, 2),
    Sketcher.Constraint("Horizontal", 27, 2, 30, 2),
    Sketcher.Constraint("Horizontal", 29, 2, 32, 2),
    Sketcher.Constraint("Horizontal", 31, 2, 34, 2),
    Sketcher.Constraint("Horizontal", 37, 2, 40, 2),
    Sketcher.Constraint("Horizontal", 39, 2, 42, 2),
    Sketcher.Constraint("Horizontal", 41, 2, 44, 2),
    Sketcher.Constraint("Horizontal", 43, 2, 46, 2),
    Sketcher.Constraint("Horizontal", 49, 2, 52, 2),
    Sketcher.Constraint("Horizontal", 51, 2, 54, 2),
    Sketcher.Constraint("Horizontal", 53, 2, 56, 2),
    Sketcher.Constraint("Horizontal", 55, 2, 58, 2),
    Sketcher.Constraint("Horizontal", 61, 2, 64, 2),
    Sketcher.Constraint("Horizontal", 63, 2, 66, 2),
    Sketcher.Constraint("Horizontal", 65, 2, 68, 2),
    Sketcher.Constraint("Horizontal", 67, 2, 70, 2),
    Sketcher.Constraint("Vertical", 7, 2, 12, 2),
    Sketcher.Constraint("Vertical", 6, 2, 13, 2),
    Sketcher.Constraint("Vertical", 3, 2, 16, 2),
    Sketcher.Constraint("Vertical", 2, 2, 17, 2),
    Sketcher.Constraint("Vertical", 11, 2, 20, 2),
    Sketcher.Constraint("Vertical", 10, 2, 21, 2),
    Sketcher.Constraint("Vertical", 15, 2, 24, 2),
    Sketcher.Constraint("Vertical", 14, 2, 25, 2),
    Sketcher.Constraint("Vertical", 19, 2, 28, 2),
    Sketcher.Constraint("Vertical", 18, 2, 29, 2),
    Sketcher.Constraint("Vertical", 23, 2, 32, 2),
    Sketcher.Constraint("Vertical", 22, 2, 33, 2),
    Sketcher.Constraint("Vertical", 27, 2, 36, 2),
    Sketcher.Constraint("Vertical", 26, 2, 37, 2),
    Sketcher.Constraint("Vertical", 31, 2, 40, 2),
    Sketcher.Constraint("Vertical", 30, 2, 41, 2),
    Sketcher.Constraint("Vertical", 35, 2, 44, 2),
    Sketcher.Constraint("Vertical", 34, 2, 45, 2),
    Sketcher.Constraint("Vertical", 39, 2, 48, 2),
    Sketcher.Constraint("Vertical", 38, 2, 49, 2),
    Sketcher.Constraint("Vertical", 43, 2, 52, 2),
    Sketcher.Constraint("Vertical", 42, 2, 53, 2),
    Sketcher.Constraint("Vertical", 47, 2, 56, 2),
    Sketcher.Constraint("Vertical", 46, 2, 57, 2),
    Sketcher.Constraint("Vertical", 51, 2, 60, 2),
    Sketcher.Constraint("Vertical", 50, 2, 61, 2),
    Sketcher.Constraint("Vertical", 55, 2, 64, 2),
    Sketcher.Constraint("Vertical", 54, 2, 65, 2),
    Sketcher.Constraint("Vertical", 59, 2, 68, 2),
    Sketcher.Constraint("Vertical", 58, 2, 69, 2),
    Sketcher.Constraint("Equal", 3, 5),
    Sketcher.Constraint("Equal", 7, 9),
    Sketcher.Constraint("Equal", 71, 0),
    Sketcher.Constraint("Equal", 10, 12),
    Sketcher.Constraint("Equal", 22, 24),
    Sketcher.Constraint("Equal", 34, 36),
    Sketcher.Constraint("Equal", 46, 48),
    Sketcher.Constraint("Equal", 58, 60),
    Sketcher.Constraint("DistanceX", 1, 1, 1, 2, 1.122941),
    Sketcher.Constraint("DistanceX", -1, 1, 0, 2, 12.978529),
    Sketcher.Constraint("DistanceY", 0, 2, -1, 1, 11.15923),
    Sketcher.Constraint("DistanceX", -1, 1, 4, 2, 10.438529),
    Sketcher.Constraint("DistanceX", -1, 1, 8, 2, 15.518529),
    Sketcher.Constraint("DistanceY", 12, 2, -1, 1, 8.15923),
    Sketcher.Constraint("DistanceY", 24, 2, -1, 1, 5.15923),
    Sketcher.Constraint("DistanceY", 36, 2, -1, 1, 2.15923),
    Sketcher.Constraint("DistanceY", -1, 1, 48, 2, 0.84077),
    Sketcher.Constraint("DistanceY", -1, 1, 60, 2, 3.84077),
])
pad2 = body.newObject("PartDesign::Pad", "Pad001")
pad2.Profile = sketch3
pad2.Length = 4
pad2.Reversed = True

# Sketch on YZ plane
sketch4 = body.newObject("Sketcher::SketchObject", "Sketch003")
sketch4.AttachmentSupport = (doc.getObject("YZ_Plane"), [""])
sketch4.MapMode = "FlatFace"
sketch4.AttachmentOffset = App.Placement(Vector(0, 0, -19.5), App.Rotation())
add_polygon(sketch4, [(12, -3.9), (9, -3.9), (9, 3.1), (12, 3.1)])  # lines 0-3
sketch4.addConstraint([
    Sketcher.Constraint("Horizontal", 0),
    Sketcher.Constraint("Vertical", 1),
    Sketcher.Constraint("Horizontal", 2),
    Sketcher.Constraint("Vertical", 3),
    Sketcher.Constraint("DistanceX", 0, 2, 0, 1, 3.0),
    Sketcher.Constraint("DistanceY", 1, 1, 1, 2, 7.0),
    Sketcher.Constraint("DistanceX", -1, 1, 0, 2, 9.0),
    Sketcher.Constraint("DistanceY", 0, 2, -1, 1, 3.880148),
])
pocket2 = body.newObject("PartDesign::Pocket", "Pocket001")
pocket2.Profile = sketch4
pocket2.Length = 2
pocket2.Reversed = True

doc.recompute()
